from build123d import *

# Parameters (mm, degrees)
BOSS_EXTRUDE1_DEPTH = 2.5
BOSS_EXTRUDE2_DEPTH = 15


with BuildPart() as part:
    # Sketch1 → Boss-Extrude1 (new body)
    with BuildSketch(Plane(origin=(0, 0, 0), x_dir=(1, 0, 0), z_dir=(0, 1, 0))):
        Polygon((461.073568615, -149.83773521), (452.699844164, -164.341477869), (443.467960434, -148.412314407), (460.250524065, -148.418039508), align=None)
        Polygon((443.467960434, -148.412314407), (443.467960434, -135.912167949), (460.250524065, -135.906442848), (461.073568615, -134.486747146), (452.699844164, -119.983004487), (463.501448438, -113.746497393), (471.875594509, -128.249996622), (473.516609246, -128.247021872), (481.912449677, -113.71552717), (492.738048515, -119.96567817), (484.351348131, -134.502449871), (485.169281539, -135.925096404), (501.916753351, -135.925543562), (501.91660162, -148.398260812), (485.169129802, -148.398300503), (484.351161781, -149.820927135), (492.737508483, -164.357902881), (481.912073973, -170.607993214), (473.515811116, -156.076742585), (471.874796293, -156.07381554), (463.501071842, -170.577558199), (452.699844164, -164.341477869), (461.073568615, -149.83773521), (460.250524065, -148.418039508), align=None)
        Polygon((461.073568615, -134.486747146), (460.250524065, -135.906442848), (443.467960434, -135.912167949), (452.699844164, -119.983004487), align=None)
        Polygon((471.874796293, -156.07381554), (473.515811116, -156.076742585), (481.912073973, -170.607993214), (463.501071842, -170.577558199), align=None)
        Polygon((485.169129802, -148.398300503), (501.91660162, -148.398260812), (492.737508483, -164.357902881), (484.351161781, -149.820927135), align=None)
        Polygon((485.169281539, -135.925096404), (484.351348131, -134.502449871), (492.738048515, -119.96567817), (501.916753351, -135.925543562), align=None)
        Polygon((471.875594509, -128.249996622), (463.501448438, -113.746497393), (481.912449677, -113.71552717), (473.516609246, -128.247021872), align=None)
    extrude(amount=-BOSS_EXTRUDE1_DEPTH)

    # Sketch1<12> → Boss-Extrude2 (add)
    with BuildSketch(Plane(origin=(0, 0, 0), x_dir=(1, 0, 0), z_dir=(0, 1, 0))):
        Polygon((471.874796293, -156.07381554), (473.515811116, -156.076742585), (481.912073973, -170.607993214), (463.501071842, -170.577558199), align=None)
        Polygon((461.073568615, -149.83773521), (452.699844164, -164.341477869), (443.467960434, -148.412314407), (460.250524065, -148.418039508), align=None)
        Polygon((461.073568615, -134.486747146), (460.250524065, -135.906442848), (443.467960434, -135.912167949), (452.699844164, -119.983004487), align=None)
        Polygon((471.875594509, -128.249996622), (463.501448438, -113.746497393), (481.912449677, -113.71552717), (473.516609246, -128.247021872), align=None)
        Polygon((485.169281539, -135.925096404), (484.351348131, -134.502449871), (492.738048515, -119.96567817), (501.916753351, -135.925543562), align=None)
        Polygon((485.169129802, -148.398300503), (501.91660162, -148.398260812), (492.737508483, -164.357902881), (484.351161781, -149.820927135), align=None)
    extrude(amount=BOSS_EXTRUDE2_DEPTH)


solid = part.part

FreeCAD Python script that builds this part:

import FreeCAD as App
import Part
import Sketcher

V = App.Vector


def add_polygon(sketch, points):
    """Adds a closed chain of lines whose ends are joined by coincident constraints."""
    first, n = sketch.GeometryCount, len(points)
    for a, b in zip(points, points[1:] + points[:1]):
        sketch.addGeometry(Part.LineSegment(App.Vector(*a, 0), App.Vector(*b, 0)), False)
    for i in range(n):
        sketch.addConstraint(Sketcher.Constraint("Coincident", first + i, 2, first + (i + 1) % n, 1))

doc = App.newDocument("Part")
body = doc.addObject("PartDesign::Body", "Body")

# Sketch on XZ plane
sketch1 = doc.addObject("Sketcher::SketchObject", "Sketch")
body.addObject(sketch1)
sketch1.AttachmentSupport = (doc.XZ_Plane, [""])
sketch1.MapMode = "FlatFace"
add_polygon(sketch1, [(443.46796, 148.412314), (452.699844, 164.341478), (463.501072, 170.577558), (481.912074, 170.607993), (492.737508, 164.357903), (501.916602, 148.398261), (501.916753, 135.925544), (492.738049, 119.965678), (481.91245, 113.715527), (463.501448, 113.746497), (452.699844, 119.983004), (443.46796, 135.912168)])  # lines 0-11
sketch1.addConstraint(Sketcher.Constraint("Vertical", 11))
sketch1.addConstraint(Sketcher.Constraint("Parallel", 1, 7))
sketch1.addConstraint(Sketcher.Constraint("Vertical", 0, 2, 9, 2))
sketch1.addConstraint(Sketcher.Constraint("Equal", 0, 2))
sketch1.addConstraint(Sketcher.Constraint("Equal", 2, 4))
sketch1.addConstraint(Sketcher.Constraint("Equal", 4, 6))
sketch1.addConstraint(Sketcher.Constraint("Equal", 6, 8))
sketch1.addConstraint(Sketcher.Constraint("Equal", 5, 9))
sketch1.addConstraint(Sketcher.Constraint("Equal", 8, 10))
sketch1.addConstraint(Sketcher.Constraint("DistanceX", 8, 2, 7, 2, 18.411001))
sketch1.addConstraint(Sketcher.Constraint("DistanceX", -1, 1, 4, 2, 501.916602))
sketch1.addConstraint(Sketcher.Constraint("DistanceX", 7, 2, 6, 2, 10.825599))
sketch1.addConstraint(Sketcher.Constraint("Distance", 7, 12.500319))
sketch1.addConstraint(Sketcher.Constraint("DistanceY", 11, 1, 11, 2, 12.500146))
sketch1.addConstraint(Sketcher.Constraint("DistanceX", -1, 1, 1, 2, 463.501072))
sketch1.addConstraint(Sketcher.Constraint("DistanceY", -1, 1, 1, 2, 170.577558))
sketch1.addConstraint(Sketcher.Constraint("DistanceX", -1, 1, 3, 2, 492.737508))
sketch1.addConstraint(Sketcher.Constraint("DistanceY", -1, 1, 4, 2, 148.398261))
sketch1.addConstraint(Sketcher.Constraint("DistanceX", -1, 1, 6, 2, 492.738049))
sketch1.addConstraint(Sketcher.Constraint("DistanceY", -1, 1, 6, 2, 119.965678))
sketch1.addConstraint(Sketcher.Constraint("DistanceX", -1, 1, 10, 2, 443.46796))
sketch1.addConstraint(Sketcher.Constraint("DistanceY", 0, 2, 1, 2, 6.23608))
sketch1.addConstraint(Sketcher.Constraint("DistanceY", 3, 2, 2, 2, 6.25009))
sketch1.addConstraint(Sketcher.Constraint("DistanceX", 4, 2, 5, 2, 0.000152))
pad1 = doc.addObject("PartDesign::Pad", "Pad")
body.addObject(pad1)
pad1.Profile = sketch1
pad1.Length = 2.5

# Sketch on XZ plane
sketch2 = doc.addObject("Sketcher::SketchObject", "Sketch001")
body.addObject(sketch2)
sketch2.AttachmentSupport = (doc.XZ_Plane, [""])
sketch2.MapMode = "FlatFace"
add_polygon(sketch2, [(473.515811, 156.076743), (471.874796, 156.073816), (463.501072, 170.577558), (481.912074, 170.607993)])  # lines 0-3
add_polygon(sketch2, [(452.699844, 164.341478), (461.073569, 149.837735), (460.250524, 148.41804), (443.46796, 148.412314)])  # lines 4-7
add_polygon(sketch2, [(460.250524, 135.906443), (461.073569, 134.486747), (452.699844, 119.983004), (443.46796, 135.912168)])  # lines 8-11
add_polygon(sketch2, [(463.501448, 113.746497), (471.875595, 128.249997), (473.516609, 128.247022), (481.91245, 113.715527)])  # lines 12-15
add_polygon(sketch2, [(484.351348, 134.50245), (485.169282, 135.925096), (501.916753, 135.925544), (492.738049, 119.965678)])  # lines 16-19
add_polygon(sketch2, [(501.916602, 148.398261), (485.16913, 148.398301), (484.351162, 149.820927), (492.737508, 164.357903)])  # lines 20-23
sketch2.addConstraint(Sketcher.Constraint("Parallel", 1, 4))
sketch2.addConstraint(Sketcher.Constraint("Vertical", 4, 2, 8, 2))
sketch2.addConstraint(Sketcher.Constraint("Vertical", 7, 2, 9, 2))
sketch2.addConstraint(Sketcher.Constraint("Vertical", 6, 2, 10, 2))
sketch2.addConstraint(Sketcher.Constraint("Vertical", 5, 2, 11, 2))
sketch2.addConstraint(Sketcher.Constraint("Equal", 1, 4))
sketch2.addConstraint(Sketcher.Constraint("Equal", 0, 5))
sketch2.addConstraint(Sketcher.Constraint("Equal", 3, 6))
sketch2.addConstraint(Sketcher.Constraint("Equal", 2, 7))
sketch2.addConstraint(Sketcher.Constraint("Equal", 5, 8))
sketch2.addConstraint(Sketcher.Constraint("Equal", 4, 9))
sketch2.addConstraint(Sketcher.Constraint("Equal", 7, 10))
sketch2.addConstraint(Sketcher.Constraint("Equal", 9, 12))
sketch2.addConstraint(Sketcher.Constraint("Equal", 8, 13))
sketch2.addConstraint(Sketcher.Constraint("Equal", 11, 14))
sketch2.addConstraint(Sketcher.Constraint("Equal", 10, 15))
sketch2.addConstraint(Sketcher.Constraint("Equal", 13, 16))
sketch2.addConstraint(Sketcher.Constraint("Equal", 12, 17))
sketch2.addConstraint(Sketcher.Constraint("Equal", 15, 18))
sketch2.addConstraint(Sketcher.Constraint("Equal", 14, 19))
sketch2.addConstraint(Sketcher.Constraint("Equal", 17, 20))
sketch2.addConstraint(Sketcher.Constraint("Equal", 16, 21))
sketch2.addConstraint(Sketcher.Constraint("Equal", 19, 22))
sketch2.addConstraint(Sketcher.Constraint("Equal", 18, 23))
sketch2.addConstraint(Sketcher.Constraint("DistanceX", 15, 2, 14, 2, 18.411001))
sketch2.addConstraint(Sketcher.Constraint("DistanceY", -1, 1, 20, 2, 148.398301))
sketch2.addConstraint(Sketcher.Constraint("DistanceX", -1, 1, 23, 2, 501.916602))
sketch2.addConstraint(Sketcher.Constraint("DistanceY", 6, 2, 0, 2, 7.661501))
sketch2.addConstraint(Sketcher.Constraint("DistanceY", 15, 2, 12, 2, 14.503499))
sketch2.addConstraint(Sketcher.Constraint("DistanceY", 12, 2, 16, 2, 7.6751))
sketch2.addConstraint(Sketcher.Constraint("DistanceY", 17, 2, 3, 2, 20.151199))
sketch2.addConstraint(Sketcher.Constraint("DistanceX", 14, 2, 18, 2, 10.825599))
sketch2.addConstraint(Sketcher.Constraint("DistanceX", 19, 2, 18, 2, 8.3867))
sketch2.addConstraint(Sketcher.Constraint("Distance", 1, 16.747472))
sketch2.addConstraint(Sketcher.Constraint("DistanceX", -1, 1, 1, 2, 463.501072))
sketch2.addConstraint(Sketcher.Constraint("DistanceY", -1, 1, 1, 2, 170.577558))
sketch2.addConstraint(Sketcher.Constraint("DistanceX", -1, 1, 3, 2, 473.515811))
sketch2.addConstraint(Sketcher.Constraint("DistanceX", -1, 1, 4, 2, 461.073569))
sketch2.addConstraint(Sketcher.Constraint("DistanceY", -1, 1, 5, 2, 148.41804))
sketch2.addConstraint(Sketcher.Constraint("DistanceX", -1, 1, 6, 2, 443.46796))
sketch2.addConstraint(Sketcher.Constraint("DistanceX", -1, 1, 13, 2, 473.516609))
sketch2.addConstraint(Sketcher.Constraint("DistanceY", -1, 1, 13, 2, 128.247022))
sketch2.addConstraint(Sketcher.Constraint("DistanceX", -1, 1, 14, 2, 481.91245))
sketch2.addConstraint(Sketcher.Constraint("DistanceX", -1, 1, 16, 2, 485.169282))
sketch2.addConstraint(Sketcher.Constraint("DistanceY", -1, 1, 18, 2, 119.965678))
sketch2.addConstraint(Sketcher.Constraint("DistanceX", -1, 1, 21, 2, 484.351162))
sketch2.addConstraint(Sketcher.Constraint("DistanceX", -1, 1, 22, 2, 492.737508))
sketch2.addConstraint(Sketcher.Constraint("DistanceY", 8, 2, 4, 2, 15.350988))
pad2 = doc.addObject("PartDesign::Pad", "Pad001")
body.addObject(pad2)
pad2.Profile = sketch2
pad2.Length = 15
pad2.Reversed = True

doc.recompute()
